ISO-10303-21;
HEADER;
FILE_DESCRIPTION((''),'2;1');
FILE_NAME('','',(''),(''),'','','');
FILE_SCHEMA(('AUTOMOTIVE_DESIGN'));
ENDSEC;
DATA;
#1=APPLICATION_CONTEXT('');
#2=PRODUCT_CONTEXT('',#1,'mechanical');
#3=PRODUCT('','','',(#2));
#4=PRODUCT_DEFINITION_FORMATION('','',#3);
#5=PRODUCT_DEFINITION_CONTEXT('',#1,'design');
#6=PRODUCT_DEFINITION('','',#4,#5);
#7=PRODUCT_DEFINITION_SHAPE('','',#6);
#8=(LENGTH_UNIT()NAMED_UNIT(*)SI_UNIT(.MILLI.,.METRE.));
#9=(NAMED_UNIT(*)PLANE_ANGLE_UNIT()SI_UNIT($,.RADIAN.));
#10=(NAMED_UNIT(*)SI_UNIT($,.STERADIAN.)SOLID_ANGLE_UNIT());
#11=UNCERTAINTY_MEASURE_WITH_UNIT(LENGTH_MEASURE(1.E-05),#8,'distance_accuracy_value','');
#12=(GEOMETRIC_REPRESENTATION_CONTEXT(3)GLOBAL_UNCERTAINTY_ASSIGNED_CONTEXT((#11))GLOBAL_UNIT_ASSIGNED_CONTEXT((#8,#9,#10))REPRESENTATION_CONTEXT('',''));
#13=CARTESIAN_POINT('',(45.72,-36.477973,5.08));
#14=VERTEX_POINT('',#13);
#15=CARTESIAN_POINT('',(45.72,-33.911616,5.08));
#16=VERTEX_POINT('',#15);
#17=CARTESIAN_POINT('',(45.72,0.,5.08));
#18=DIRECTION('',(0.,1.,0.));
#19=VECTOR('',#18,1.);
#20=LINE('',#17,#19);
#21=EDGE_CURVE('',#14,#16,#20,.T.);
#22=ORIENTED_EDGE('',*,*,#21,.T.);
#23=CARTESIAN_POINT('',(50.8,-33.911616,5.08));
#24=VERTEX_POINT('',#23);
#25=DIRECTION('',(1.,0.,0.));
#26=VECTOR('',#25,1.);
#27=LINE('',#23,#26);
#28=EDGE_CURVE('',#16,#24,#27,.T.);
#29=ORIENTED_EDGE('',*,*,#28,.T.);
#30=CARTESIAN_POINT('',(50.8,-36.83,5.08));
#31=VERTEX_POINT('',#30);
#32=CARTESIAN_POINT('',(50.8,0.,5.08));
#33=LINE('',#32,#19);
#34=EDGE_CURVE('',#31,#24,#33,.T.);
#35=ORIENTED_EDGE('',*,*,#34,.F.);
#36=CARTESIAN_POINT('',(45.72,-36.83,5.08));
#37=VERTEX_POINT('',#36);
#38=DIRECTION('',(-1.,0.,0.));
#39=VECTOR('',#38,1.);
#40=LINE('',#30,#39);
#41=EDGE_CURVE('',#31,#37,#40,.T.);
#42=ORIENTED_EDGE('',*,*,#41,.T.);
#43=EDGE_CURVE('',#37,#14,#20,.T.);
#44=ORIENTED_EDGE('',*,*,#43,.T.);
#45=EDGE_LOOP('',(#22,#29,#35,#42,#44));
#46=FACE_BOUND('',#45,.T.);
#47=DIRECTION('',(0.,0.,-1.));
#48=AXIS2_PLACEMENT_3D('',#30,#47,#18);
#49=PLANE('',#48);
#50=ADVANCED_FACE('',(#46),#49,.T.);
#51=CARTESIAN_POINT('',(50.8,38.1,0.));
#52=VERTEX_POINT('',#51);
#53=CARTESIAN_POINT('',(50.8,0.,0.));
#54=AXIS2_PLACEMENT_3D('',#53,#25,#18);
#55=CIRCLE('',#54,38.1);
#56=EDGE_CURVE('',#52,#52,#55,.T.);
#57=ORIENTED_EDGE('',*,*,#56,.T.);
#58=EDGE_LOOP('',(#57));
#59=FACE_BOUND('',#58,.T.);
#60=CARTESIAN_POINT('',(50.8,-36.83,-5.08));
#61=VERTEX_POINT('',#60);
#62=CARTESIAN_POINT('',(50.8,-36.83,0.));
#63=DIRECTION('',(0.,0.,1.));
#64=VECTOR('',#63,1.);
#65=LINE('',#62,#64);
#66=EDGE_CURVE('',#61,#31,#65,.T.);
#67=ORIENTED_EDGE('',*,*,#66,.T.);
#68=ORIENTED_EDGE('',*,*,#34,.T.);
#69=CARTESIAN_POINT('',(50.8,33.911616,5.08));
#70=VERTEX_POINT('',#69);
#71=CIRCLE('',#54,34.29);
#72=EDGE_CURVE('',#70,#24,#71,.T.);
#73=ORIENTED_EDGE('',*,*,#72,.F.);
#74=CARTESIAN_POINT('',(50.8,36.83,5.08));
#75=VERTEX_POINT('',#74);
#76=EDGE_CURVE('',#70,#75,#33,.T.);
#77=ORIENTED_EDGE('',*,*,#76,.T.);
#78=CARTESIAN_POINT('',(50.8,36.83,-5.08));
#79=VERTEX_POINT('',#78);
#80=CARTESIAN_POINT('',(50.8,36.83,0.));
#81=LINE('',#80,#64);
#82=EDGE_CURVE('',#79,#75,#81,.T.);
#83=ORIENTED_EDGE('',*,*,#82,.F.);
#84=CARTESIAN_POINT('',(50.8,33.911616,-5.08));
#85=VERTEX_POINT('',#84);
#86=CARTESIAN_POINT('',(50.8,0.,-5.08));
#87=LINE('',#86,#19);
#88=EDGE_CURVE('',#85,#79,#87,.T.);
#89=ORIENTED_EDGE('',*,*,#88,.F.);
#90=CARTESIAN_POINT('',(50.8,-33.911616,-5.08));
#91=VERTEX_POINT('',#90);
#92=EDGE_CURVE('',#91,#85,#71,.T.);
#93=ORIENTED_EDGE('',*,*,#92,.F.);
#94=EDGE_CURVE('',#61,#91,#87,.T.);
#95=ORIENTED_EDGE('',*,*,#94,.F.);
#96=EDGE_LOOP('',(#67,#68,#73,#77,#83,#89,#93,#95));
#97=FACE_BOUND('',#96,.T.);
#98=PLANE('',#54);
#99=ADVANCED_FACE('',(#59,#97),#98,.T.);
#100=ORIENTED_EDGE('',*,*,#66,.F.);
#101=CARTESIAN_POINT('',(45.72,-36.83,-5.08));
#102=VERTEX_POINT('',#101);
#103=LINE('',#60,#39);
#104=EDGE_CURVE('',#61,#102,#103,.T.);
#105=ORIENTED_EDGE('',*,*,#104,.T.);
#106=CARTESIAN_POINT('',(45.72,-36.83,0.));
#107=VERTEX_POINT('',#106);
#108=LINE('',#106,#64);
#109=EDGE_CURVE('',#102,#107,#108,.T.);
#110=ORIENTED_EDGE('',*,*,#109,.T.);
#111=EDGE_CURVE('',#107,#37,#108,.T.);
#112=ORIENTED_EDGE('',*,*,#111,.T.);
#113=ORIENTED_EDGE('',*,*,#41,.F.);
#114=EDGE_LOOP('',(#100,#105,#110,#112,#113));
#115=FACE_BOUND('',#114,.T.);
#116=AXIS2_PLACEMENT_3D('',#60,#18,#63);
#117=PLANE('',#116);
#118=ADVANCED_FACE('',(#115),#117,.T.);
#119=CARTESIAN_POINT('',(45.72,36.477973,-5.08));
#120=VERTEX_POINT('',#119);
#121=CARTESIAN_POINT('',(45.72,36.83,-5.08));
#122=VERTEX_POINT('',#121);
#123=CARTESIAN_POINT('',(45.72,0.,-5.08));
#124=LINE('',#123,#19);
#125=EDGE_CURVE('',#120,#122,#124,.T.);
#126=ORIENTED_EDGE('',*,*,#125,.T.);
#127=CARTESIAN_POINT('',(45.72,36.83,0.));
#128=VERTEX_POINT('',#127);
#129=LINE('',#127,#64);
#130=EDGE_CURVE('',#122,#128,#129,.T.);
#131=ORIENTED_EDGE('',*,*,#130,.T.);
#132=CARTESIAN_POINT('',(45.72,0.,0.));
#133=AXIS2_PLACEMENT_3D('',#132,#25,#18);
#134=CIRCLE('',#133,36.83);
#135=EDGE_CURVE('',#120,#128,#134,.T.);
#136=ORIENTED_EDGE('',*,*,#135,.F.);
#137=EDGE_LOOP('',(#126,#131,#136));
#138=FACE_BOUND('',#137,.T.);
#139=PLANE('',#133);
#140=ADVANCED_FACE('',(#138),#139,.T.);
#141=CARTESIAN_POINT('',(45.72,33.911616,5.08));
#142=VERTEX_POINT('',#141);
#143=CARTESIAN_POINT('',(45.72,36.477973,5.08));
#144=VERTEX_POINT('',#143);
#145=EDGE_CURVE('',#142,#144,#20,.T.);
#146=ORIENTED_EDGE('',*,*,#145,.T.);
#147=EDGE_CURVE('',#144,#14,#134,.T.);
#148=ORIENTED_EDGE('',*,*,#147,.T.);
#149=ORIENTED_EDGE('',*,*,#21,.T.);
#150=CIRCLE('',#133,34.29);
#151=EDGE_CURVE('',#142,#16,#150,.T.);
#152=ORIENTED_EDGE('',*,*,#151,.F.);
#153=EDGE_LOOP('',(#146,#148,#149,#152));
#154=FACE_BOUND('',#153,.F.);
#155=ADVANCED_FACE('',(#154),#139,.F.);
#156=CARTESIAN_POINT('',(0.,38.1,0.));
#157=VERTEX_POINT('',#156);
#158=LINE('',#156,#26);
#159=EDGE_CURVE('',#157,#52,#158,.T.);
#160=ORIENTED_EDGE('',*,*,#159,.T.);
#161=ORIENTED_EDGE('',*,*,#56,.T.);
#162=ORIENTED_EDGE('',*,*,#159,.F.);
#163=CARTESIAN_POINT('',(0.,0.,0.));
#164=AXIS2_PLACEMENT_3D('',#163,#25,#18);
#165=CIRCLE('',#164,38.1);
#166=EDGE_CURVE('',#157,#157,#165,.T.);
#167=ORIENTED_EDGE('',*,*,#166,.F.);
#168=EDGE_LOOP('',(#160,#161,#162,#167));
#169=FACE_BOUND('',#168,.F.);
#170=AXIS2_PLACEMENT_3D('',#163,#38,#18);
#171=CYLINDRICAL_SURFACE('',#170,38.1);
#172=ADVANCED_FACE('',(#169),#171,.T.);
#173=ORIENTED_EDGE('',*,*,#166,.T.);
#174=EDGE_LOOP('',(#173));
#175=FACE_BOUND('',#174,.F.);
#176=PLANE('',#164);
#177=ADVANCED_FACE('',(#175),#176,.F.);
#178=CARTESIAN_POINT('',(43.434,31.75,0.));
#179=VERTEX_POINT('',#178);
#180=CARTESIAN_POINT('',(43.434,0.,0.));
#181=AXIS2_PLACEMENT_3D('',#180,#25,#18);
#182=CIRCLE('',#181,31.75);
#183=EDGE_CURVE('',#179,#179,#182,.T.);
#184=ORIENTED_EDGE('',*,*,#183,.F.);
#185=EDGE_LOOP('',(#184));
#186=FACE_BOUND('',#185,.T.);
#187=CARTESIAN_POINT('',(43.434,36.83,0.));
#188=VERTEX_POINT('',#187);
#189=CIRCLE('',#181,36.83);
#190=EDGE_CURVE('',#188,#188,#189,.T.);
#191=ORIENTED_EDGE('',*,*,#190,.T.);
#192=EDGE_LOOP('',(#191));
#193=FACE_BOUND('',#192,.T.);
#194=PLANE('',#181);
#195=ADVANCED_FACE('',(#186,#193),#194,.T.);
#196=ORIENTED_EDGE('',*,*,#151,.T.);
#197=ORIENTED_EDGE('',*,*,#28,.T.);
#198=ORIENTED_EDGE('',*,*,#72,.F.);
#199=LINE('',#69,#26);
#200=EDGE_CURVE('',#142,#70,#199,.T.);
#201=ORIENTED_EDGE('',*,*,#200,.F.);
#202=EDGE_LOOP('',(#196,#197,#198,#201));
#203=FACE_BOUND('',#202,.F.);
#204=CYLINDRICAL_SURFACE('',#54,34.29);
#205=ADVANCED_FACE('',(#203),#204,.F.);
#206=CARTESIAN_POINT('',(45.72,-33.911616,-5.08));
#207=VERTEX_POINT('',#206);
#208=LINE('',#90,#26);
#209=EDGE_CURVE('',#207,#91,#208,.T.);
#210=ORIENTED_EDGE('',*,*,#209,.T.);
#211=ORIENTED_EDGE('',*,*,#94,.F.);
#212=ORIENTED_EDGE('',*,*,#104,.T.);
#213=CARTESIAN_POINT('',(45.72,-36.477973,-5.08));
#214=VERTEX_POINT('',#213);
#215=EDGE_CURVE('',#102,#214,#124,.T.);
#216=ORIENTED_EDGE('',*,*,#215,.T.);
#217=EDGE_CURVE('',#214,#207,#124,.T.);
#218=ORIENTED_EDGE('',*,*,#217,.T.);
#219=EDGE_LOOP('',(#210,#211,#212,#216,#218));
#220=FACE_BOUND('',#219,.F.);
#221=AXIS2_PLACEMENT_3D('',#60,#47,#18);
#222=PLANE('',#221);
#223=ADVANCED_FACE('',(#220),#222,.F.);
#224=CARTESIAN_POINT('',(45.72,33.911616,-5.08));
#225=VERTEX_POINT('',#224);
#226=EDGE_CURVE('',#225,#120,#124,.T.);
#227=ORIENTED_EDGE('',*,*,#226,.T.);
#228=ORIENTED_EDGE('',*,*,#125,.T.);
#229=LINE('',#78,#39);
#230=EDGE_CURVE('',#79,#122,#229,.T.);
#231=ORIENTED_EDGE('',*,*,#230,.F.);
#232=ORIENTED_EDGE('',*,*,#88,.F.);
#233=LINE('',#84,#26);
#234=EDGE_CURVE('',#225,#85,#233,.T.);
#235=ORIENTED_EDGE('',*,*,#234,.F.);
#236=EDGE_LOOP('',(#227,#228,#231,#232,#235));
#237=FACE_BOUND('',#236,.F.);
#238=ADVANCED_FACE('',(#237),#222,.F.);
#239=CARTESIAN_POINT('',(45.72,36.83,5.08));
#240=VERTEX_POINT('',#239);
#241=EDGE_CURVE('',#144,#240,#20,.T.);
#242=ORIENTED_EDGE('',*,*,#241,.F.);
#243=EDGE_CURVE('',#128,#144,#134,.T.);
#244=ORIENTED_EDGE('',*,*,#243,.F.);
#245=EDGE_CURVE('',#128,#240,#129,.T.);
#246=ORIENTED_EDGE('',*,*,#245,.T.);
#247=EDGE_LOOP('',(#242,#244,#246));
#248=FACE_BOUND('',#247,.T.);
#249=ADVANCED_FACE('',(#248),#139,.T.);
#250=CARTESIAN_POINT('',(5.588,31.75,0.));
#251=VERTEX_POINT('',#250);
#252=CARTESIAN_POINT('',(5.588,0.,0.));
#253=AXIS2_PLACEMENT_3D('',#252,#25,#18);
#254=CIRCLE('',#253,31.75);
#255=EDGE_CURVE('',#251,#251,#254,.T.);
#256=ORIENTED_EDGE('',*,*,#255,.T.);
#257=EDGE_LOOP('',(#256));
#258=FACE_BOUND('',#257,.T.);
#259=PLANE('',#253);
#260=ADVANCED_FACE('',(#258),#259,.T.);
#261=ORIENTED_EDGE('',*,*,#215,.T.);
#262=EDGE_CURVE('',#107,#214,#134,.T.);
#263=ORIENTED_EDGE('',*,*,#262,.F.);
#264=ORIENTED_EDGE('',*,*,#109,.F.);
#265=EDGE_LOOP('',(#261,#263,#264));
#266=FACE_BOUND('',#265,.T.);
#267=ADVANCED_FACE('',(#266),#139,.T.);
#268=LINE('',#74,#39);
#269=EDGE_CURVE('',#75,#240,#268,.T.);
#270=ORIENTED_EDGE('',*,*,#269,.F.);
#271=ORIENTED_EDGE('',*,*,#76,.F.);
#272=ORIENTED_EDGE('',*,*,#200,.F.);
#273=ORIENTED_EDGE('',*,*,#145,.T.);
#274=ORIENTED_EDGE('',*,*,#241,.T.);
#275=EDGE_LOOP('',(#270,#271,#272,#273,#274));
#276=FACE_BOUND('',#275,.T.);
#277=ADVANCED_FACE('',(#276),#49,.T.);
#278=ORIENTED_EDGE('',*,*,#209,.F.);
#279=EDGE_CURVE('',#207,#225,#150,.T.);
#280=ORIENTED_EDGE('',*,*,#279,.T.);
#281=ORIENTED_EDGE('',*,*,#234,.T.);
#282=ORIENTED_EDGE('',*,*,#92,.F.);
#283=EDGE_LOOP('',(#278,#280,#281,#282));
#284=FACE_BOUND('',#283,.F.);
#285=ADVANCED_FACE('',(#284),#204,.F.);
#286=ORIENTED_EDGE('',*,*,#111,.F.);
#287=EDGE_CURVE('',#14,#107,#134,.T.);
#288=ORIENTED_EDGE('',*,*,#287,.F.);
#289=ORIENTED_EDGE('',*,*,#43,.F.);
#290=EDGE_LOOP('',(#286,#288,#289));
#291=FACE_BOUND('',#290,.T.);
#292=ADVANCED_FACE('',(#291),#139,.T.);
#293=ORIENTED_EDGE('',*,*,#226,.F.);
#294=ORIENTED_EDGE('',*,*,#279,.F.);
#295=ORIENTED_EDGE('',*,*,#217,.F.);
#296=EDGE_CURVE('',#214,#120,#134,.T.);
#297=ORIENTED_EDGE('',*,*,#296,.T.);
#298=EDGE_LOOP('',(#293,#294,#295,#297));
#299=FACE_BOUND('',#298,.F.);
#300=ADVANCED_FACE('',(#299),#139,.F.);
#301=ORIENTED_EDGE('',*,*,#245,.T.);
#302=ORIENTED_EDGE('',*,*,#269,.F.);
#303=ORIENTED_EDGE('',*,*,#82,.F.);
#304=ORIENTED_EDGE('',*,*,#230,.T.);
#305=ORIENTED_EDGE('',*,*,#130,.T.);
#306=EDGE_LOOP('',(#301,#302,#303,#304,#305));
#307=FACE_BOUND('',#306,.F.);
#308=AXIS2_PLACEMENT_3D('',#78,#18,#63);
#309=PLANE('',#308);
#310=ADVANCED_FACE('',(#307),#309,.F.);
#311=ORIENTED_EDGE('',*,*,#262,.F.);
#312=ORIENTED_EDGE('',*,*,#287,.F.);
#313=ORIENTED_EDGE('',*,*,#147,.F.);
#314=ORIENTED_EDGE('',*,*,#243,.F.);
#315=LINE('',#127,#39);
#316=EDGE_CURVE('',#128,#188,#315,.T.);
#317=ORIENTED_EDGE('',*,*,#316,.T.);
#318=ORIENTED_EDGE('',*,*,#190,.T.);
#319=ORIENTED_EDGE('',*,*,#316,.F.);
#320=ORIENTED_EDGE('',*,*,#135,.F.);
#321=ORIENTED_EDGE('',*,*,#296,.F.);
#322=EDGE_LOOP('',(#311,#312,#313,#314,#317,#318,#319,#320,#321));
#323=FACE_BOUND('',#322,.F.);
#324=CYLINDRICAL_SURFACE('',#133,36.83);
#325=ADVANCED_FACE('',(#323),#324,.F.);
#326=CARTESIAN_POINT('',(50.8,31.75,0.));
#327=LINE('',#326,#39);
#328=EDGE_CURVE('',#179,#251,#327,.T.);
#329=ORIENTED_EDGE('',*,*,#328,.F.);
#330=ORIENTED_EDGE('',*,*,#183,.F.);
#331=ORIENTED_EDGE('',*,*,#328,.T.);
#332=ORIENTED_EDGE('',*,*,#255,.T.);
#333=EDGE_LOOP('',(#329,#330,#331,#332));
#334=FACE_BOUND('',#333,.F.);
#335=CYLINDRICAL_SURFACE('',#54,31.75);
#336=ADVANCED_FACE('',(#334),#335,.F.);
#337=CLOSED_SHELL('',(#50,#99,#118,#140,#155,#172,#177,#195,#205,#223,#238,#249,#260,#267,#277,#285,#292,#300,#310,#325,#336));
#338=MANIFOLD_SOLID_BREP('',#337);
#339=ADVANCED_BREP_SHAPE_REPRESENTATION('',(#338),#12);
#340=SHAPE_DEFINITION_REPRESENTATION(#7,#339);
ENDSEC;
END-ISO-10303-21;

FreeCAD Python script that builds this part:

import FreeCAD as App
import Part
import Sketcher
from FreeCAD import Vector
Q = App.Units.Quantity


def add_polygon(sketch, points):
    """Adds a closed chain of lines whose ends are joined by coincident constraints."""
    first, n = sketch.GeometryCount, len(points)
    for a, b in zip(points, points[1:] + points[:1]):
        sketch.addGeometry(Part.LineSegment(App.Vector(*a, 0), App.Vector(*b, 0)), False)
    for i in range(n):
        sketch.addConstraint(Sketcher.Constraint("Coincident", first + i, 2, first + (i + 1) % n, 1))

doc = App.newDocument("Part")
body = doc.addObject("PartDesign::Body", "Body")

# Sketch on YZ plane
sketch1 = body.newObject("Sketcher::SketchObject", "Sketch")
sketch1.AttachmentSupport = (doc.getObject("YZ_Plane"), [""])
sketch1.MapMode = "FlatFace"
sketch1.addGeometry(Part.Circle(Vector(0, 0, 0), Vector(0, 0, 1), 38), False)
sketch1.addConstraint([
    Sketcher.Constraint("Coincident", 0, 3, -1, 1),
    Sketcher.Constraint("Diameter", 0, Q("3 in")),
])
pad1 = body.newObject("PartDesign::Pad", "Pad")
pad1.Profile = sketch1
pad1.Length = Q("2 in")

# Sketch on YZ plane
sketch2 = body.newObject("Sketcher::SketchObject", "Sketch001")
sketch2.AttachmentSupport = (doc.getObject("YZ_Plane"), [""])
sketch2.MapMode = "FlatFace"
sketch2.AttachmentOffset = App.Placement(Vector(0, 0, 2 * 25.4), App.Rotation())
sketch2.addGeometry(Part.Circle(Vector(0, 0, 0), Vector(0, 0, 1), 32), False)
sketch2.addConstraint([
    Sketcher.Constraint("Coincident", 0, 3, -1, 1),
    Sketcher.Constraint("Diameter", 0, Q("2.5 in")),
])
pocket1 = body.newObject("PartDesign::Pocket", "Pocket")
pocket1.Profile = sketch2
pocket1.Length = Q("1.78 in")

# Sketch on YZ plane
sketch3 = body.newObject("Sketcher::SketchObject", "Sketch002")
sketch3.AttachmentSupport = (doc.getObject("YZ_Plane"), [""])
sketch3.MapMode = "FlatFace"
sketch3.AttachmentOffset = App.Placement(Vector(0, 0, 2 * 25.4), App.Rotation())
sketch3.addGeometry(Part.Circle(Vector(0, 0, 0), Vector(0, 0, 1), 34), False)
sketch3.addConstraint([
    Sketcher.Constraint("Coincident", 0, 3, -1, 1),
    Sketcher.Constraint("Diameter", 0, Q("2.7 in")),
])
pocket2 = body.newObject("PartDesign::Pocket", "Pocket001")
pocket2.Profile = sketch3
pocket2.Length = Q("0.2 in")

# Sketch on YZ plane
sketch4 = body.newObject("Sketcher::SketchObject", "Sketch003")
sketch4.AttachmentSupport = (doc.getObject("YZ_Plane"), [""])
sketch4.MapMode = "FlatFace"
sketch4.AttachmentOffset = App.Placement(Vector(0, 0, 2 * 25.4), App.Rotation())
add_polygon(sketch4, [(-37, 5), (-37, -5), (37, -5), (37, 5)])  # lines 0-3
sketch4.addConstraint([
    Sketcher.Constraint("Vertical", 0),
    Sketcher.Constraint("Horizontal", 1),
    Sketcher.Constraint("Vertical", 2),
    Sketcher.Constraint("Horizontal", 3),
    Sketcher.Constraint("Symmetric", 0, 2, 2, 2, -1, 1),
    Sketcher.Constraint("DistanceX", 1, 1, 1, 2, Q("2.9 in")),
    Sketcher.Constraint("DistanceY", 0, 2, 0, 1, Q("0.4 in")),
])
pocket3 = body.newObject("PartDesign::Pocket", "Pocket002")
pocket3.Profile = sketch4
pocket3.Length = Q("0.2 in")

# Sketch on YZ plane
sketch5 = body.newObject("Sketcher::SketchObject", "Sketch004")
sketch5.AttachmentSupport = (doc.getObject("YZ_Plane"), [""])
sketch5.MapMode = "FlatFace"
sketch5.AttachmentOffset = App.Placement(Vector(0, 0, 1.8 * 25.4), App.Rotation())
sketch5.addGeometry(Part.Circle(Vector(0, 0, 0), Vector(0, 0, 1), 37), False)
sketch5.addConstraint([
    Sketcher.Constraint("Coincident", 0, 3, -1, 1),
    Sketcher.Constraint("Diameter", 0, Q("2.9 in")),
])
pocket4 = body.newObject("PartDesign::Pocket", "Pocket003")
pocket4.Profile = sketch5
pocket4.Length = Q("0.09 in")

doc.recompute()
